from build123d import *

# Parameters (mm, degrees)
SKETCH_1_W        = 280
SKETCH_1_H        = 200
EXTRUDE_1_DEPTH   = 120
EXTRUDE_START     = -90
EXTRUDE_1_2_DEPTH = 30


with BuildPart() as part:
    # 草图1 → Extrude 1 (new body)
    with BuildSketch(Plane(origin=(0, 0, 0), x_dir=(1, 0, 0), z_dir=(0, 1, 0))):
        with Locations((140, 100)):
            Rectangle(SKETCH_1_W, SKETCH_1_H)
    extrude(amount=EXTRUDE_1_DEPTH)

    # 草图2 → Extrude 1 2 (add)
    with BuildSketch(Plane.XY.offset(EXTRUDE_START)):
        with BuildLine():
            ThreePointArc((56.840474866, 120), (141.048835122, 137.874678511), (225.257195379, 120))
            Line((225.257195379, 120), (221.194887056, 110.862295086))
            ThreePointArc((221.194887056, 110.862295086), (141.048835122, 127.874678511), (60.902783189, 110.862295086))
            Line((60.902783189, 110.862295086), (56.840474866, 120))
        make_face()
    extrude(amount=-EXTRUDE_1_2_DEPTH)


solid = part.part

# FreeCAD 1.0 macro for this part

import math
import FreeCAD as App
import Part
import Sketcher
from FreeCAD import Vector
Q = App.Units.Quantity


def add_polygon(sketch, points):
    """Adds a closed chain of lines whose ends are joined by coincident constraints."""
    first, n = sketch.GeometryCount, len(points)
    for a, b in zip(points, points[1:] + points[:1]):
        sketch.addGeometry(Part.LineSegment(App.Vector(*a, 0), App.Vector(*b, 0)), False)
    for i in range(n):
        sketch.addConstraint(Sketcher.Constraint("Coincident", first + i, 2, first + (i + 1) % n, 1))

doc = App.newDocument("Part")
body = doc.addObject("PartDesign::Body", "Body")

sketch1 = body.newObject("Sketcher::SketchObject", "Sketch")
sketch1.AttachmentSupport = (doc.getObject("XZ_Plane"), [""])
sketch1.MapMode = "FlatFace"
add_polygon(sketch1, [(0, -200), (0, 0), (280, 0), (280, -200)])
sketch1.addConstraint([
    Sketcher.Constraint("Vertical", 0),
    Sketcher.Constraint("Horizontal", 1),
    Sketcher.Constraint("Vertical", 2),
    Sketcher.Constraint("Horizontal", 3),
    Sketcher.Constraint("Coincident", 0, 2, -1, 1),
    Sketcher.Constraint("DistanceX", 1, 1, 1, 2, Q("280 mm")),
    Sketcher.Constraint("DistanceY", 0, 1, 0, 2, Q("200 mm")),
])
pad1 = body.newObject("PartDesign::Pad", "Pad")
pad1.Profile = sketch1
pad1.Length = 120
pad1.Reversed = True

sketch2 = body.newObject("Sketcher::SketchObject", "Sketch001")
sketch2.AttachmentSupport = (doc.getObject("XY_Plane"), [""])
sketch2.MapMode = "FlatFace"
sketch2.AttachmentOffset = App.Placement(Vector(0, 0, -90), App.Rotation())
sketch2.addGeometry([
    Part.ArcOfCircle(Part.Circle(Vector(141, -69, 0), Vector(0, 0, 1), 207), math.radians(66), math.radians(114)),
    Part.LineSegment(Vector(57, 120, 0), Vector(61, 111, 0)),
    Part.ArcOfCircle(Part.Circle(Vector(141, -69, 0), Vector(0, 0, 1), 197), math.radians(66), math.radians(114)),
    Part.LineSegment(Vector(221, 111, 0), Vector(225, 120, 0)),
], False)
sketch2.addConstraint([
    Sketcher.Constraint("Coincident", 0, 2, 1, 1),
    Sketcher.Constraint("Coincident", 1, 2, 2, 2),
    Sketcher.Constraint("Coincident", 2, 1, 3, 1),
    Sketcher.Constraint("Coincident", 3, 2, 0, 1),
    Sketcher.Constraint("Coincident", 2, 3, 0, 3),
    Sketcher.Constraint("Horizontal", 1, 2, 2, 1),
    Sketcher.Constraint("Horizontal", 0, 2, 3, 2),
    Sketcher.Constraint("Distance", 1, Q("10 mm")),
    Sketcher.Constraint("DistanceY", -1, 1, 0, 2, Q("120 mm")),
    Sketcher.Constraint("Radius", 0, Q("207.291898 mm")),
    Sketcher.Constraint("DistanceY", 0, 3, -1, 1, Q("69.417219 mm")),
    Sketcher.Constraint("DistanceX", 0, 2, 1, 2, Q("4.062308 mm")),
    Sketcher.Constraint("DistanceX", -1, 1, 0, 3, Q("141.048835 mm")),
])
pad2 = body.newObject("PartDesign::Pad", "Pad001")
pad2.Profile = sketch2
pad2.Length = 30
pad2.Reversed = True

doc.recompute()
